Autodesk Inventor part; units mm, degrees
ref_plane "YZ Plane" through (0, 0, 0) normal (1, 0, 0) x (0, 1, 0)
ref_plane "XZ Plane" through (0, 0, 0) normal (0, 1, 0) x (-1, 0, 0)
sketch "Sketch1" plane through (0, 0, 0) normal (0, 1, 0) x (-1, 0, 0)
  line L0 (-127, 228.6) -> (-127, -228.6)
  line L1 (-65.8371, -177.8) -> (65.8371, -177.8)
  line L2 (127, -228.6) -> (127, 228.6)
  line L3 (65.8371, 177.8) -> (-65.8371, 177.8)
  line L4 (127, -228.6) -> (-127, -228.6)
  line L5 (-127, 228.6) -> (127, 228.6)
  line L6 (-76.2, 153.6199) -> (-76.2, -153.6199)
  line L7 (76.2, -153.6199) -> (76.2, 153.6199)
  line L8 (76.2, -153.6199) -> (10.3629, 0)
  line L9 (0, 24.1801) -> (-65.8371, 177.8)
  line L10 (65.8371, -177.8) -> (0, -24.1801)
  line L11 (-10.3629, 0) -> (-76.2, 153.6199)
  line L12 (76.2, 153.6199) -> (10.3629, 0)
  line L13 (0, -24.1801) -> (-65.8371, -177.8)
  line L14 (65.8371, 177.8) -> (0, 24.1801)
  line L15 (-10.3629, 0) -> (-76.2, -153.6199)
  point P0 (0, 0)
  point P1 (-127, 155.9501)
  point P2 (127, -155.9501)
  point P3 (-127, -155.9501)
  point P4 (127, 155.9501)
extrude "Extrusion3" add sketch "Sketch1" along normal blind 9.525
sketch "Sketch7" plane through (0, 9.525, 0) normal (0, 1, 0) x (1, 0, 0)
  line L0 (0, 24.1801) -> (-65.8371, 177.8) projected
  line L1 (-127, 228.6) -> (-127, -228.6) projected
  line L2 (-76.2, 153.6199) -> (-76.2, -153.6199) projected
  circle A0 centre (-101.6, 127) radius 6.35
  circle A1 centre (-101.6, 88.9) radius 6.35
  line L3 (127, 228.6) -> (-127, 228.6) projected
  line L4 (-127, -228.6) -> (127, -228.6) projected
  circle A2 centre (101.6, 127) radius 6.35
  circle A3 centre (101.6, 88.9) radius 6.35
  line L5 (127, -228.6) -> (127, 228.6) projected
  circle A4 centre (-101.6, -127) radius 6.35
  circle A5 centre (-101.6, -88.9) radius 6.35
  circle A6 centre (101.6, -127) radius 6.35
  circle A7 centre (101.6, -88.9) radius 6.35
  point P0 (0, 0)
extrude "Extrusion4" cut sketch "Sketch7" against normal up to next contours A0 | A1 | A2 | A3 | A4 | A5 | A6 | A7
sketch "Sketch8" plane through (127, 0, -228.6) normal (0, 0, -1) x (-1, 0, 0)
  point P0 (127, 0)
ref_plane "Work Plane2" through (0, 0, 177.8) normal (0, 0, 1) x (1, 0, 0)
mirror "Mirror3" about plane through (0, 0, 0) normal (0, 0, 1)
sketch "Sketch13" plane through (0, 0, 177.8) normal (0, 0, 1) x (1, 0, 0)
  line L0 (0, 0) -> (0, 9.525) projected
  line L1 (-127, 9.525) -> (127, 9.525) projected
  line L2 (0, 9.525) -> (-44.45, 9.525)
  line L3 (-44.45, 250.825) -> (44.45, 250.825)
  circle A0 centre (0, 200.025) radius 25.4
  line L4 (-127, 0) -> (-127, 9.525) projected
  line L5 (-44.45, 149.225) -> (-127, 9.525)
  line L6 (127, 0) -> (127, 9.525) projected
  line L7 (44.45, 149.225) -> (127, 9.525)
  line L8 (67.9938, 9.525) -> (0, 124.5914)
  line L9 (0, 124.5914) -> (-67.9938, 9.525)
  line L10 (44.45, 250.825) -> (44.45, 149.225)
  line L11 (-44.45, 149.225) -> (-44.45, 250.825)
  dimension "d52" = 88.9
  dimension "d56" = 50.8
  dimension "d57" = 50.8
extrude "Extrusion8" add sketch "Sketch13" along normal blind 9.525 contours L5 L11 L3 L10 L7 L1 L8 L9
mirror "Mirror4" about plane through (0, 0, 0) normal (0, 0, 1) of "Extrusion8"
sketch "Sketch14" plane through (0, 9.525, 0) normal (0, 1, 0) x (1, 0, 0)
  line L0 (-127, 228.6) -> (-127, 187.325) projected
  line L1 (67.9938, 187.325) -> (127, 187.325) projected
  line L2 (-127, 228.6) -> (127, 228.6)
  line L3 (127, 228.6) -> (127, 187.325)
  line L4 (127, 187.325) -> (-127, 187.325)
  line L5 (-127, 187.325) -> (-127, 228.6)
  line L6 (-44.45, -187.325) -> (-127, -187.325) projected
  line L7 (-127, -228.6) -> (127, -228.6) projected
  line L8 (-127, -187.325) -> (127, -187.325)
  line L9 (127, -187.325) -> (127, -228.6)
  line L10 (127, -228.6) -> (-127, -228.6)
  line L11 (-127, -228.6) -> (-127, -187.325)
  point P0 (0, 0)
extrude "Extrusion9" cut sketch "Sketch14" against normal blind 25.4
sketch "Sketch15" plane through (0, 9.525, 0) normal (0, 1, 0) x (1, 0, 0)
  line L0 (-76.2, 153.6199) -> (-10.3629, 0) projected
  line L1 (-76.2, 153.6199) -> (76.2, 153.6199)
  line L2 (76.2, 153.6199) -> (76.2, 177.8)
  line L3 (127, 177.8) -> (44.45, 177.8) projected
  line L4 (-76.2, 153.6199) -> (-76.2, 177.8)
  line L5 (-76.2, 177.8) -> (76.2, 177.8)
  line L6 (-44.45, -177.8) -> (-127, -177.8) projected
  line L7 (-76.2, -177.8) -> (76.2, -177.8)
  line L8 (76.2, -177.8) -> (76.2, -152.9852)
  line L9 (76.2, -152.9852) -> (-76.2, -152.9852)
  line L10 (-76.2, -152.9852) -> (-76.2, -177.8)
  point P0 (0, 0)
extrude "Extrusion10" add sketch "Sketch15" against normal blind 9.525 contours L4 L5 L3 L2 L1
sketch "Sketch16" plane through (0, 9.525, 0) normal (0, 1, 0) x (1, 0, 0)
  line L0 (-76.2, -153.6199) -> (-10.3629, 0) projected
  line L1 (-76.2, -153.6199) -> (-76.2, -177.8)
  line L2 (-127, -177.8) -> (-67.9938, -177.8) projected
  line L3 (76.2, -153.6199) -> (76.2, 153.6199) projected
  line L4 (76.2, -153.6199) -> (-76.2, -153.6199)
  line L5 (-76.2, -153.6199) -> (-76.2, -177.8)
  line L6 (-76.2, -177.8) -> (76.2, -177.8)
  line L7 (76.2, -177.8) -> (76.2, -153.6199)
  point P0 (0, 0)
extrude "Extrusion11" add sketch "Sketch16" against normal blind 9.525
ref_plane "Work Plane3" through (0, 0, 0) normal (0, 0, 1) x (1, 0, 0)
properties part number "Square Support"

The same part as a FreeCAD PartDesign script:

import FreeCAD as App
import Part
import Sketcher
Q = App.Units.Quantity

doc = App.newDocument("Part")
body = doc.addObject("PartDesign::Body", "Body")

sketch1 = body.newObject("Sketcher::SketchObject", "Sketch")
sketch1.AttachmentSupport = (doc.getObject("XZ_Plane"), [""])
sketch1.MapMode = "FlatFace"
sketch1.addGeometry(Part.LineSegment(App.Vector(-127, 229, 0), App.Vector(127, 229, 0)), False)
sketch1.addGeometry(Part.LineSegment(App.Vector(127, 229, 0), App.Vector(127, -229, 0)), False)
sketch1.addGeometry(Part.LineSegment(App.Vector(127, -229, 0), App.Vector(-127, -229, 0)), False)
sketch1.addGeometry(Part.LineSegment(App.Vector(-127, -229, 0), App.Vector(-127, 229, 0)), False)
sketch1.addGeometry(Part.LineSegment(App.Vector(-66, -178, 0), App.Vector(66, -178, 0)), False)
sketch1.addGeometry(Part.LineSegment(App.Vector(66, -178, 0), App.Vector(0, -24, 0)), False)
sketch1.addGeometry(Part.LineSegment(App.Vector(0, -24, 0), App.Vector(-66, -178, 0)), False)
sketch1.addGeometry(Part.LineSegment(App.Vector(76, -154, 0), App.Vector(76, 154, 0)), False)
sketch1.addGeometry(Part.LineSegment(App.Vector(76, 154, 0), App.Vector(10, 0, 0)), False)
sketch1.addGeometry(Part.LineSegment(App.Vector(10, 0, 0), App.Vector(76, -154, 0)), False)
sketch1.addGeometry(Part.LineSegment(App.Vector(-76, 154, 0), App.Vector(-76, -154, 0)), False)
sketch1.addGeometry(Part.LineSegment(App.Vector(-76, -154, 0), App.Vector(-10, 0, 0)), False)
sketch1.addGeometry(Part.LineSegment(App.Vector(-10, 0, 0), App.Vector(-76, 154, 0)), False)
sketch1.addGeometry(Part.LineSegment(App.Vector(66, 178, 0), App.Vector(-66, 178, 0)), False)
sketch1.addGeometry(Part.LineSegment(App.Vector(-66, 178, 0), App.Vector(0, 24, 0)), False)
sketch1.addGeometry(Part.LineSegment(App.Vector(0, 24, 0), App.Vector(66, 178, 0)), False)
sketch1.addConstraint(Sketcher.Constraint("Coincident", 0, 2, 1, 1))
sketch1.addConstraint(Sketcher.Constraint("Coincident", 1, 2, 2, 1))
sketch1.addConstraint(Sketcher.Constraint("Coincident", 2, 2, 3, 1))
sketch1.addConstraint(Sketcher.Constraint("Coincident", 3, 2, 0, 1))
sketch1.addConstraint(Sketcher.Constraint("Coincident", 4, 2, 5, 1))
sketch1.addConstraint(Sketcher.Constraint("Coincident", 5, 2, 6, 1))
sketch1.addConstraint(Sketcher.Constraint("Coincident", 6, 2, 4, 1))
sketch1.addConstraint(Sketcher.Constraint("Coincident", 7, 2, 8, 1))
sketch1.addConstraint(Sketcher.Constraint("Coincident", 8, 2, 9, 1))
sketch1.addConstraint(Sketcher.Constraint("Coincident", 9, 2, 7, 1))
sketch1.addConstraint(Sketcher.Constraint("Coincident", 10, 2, 11, 1))
sketch1.addConstraint(Sketcher.Constraint("Coincident", 11, 2, 12, 1))
sketch1.addConstraint(Sketcher.Constraint("Coincident", 12, 2, 10, 1))
sketch1.addConstraint(Sketcher.Constraint("Coincident", 13, 2, 14, 1))
sketch1.addConstraint(Sketcher.Constraint("Coincident", 14, 2, 15, 1))
sketch1.addConstraint(Sketcher.Constraint("Coincident", 15, 2, 13, 1))
sketch1.addConstraint(Sketcher.Constraint("Horizontal", 0))
sketch1.addConstraint(Sketcher.Constraint("Vertical", 1))
sketch1.addConstraint(Sketcher.Constraint("Horizontal", 2))
sketch1.addConstraint(Sketcher.Constraint("Vertical", 3))
sketch1.addConstraint(Sketcher.Constraint("Horizontal", 4))
sketch1.addConstraint(Sketcher.Constraint("Vertical", 7))
sketch1.addConstraint(Sketcher.Constraint("Vertical", 10))
sketch1.addConstraint(Sketcher.Constraint("Horizontal", 13))
sketch1.addConstraint(Sketcher.Constraint("Symmetric", 0, 2, 2, 2, -1, 1))
sketch1.addConstraint(Sketcher.Constraint("Symmetric", 7, 2, 10, 2, -1, 1))
sketch1.addConstraint(Sketcher.Constraint("Symmetric", 8, 2, 11, 2, -1, 1))
sketch1.addConstraint(Sketcher.Constraint("Symmetric", 4, 2, 13, 2, -1, 1))
sketch1.addConstraint(Sketcher.Constraint("Symmetric", 5, 2, 14, 2, -1, 1))
sketch1.addConstraint(Sketcher.Constraint("PointOnObject", 5, 2, -2))
sketch1.addConstraint(Sketcher.Constraint("PointOnObject", 8, 2, -1))
sketch1.addConstraint(Sketcher.Constraint("Parallel", 6, 8))
sketch1.addConstraint(Sketcher.Constraint("Parallel", 5, 9))
sketch1.addConstraint(Sketcher.Constraint("Parallel", 9, 12))
sketch1.addConstraint(Sketcher.Constraint("Parallel", 11, 15))
sketch1.addConstraint(Sketcher.Constraint("Horizontal", 9, 2, 10, 2))
sketch1.addConstraint(Sketcher.Constraint("Equal", 6, 8))
sketch1.addConstraint(Sketcher.Constraint("DistanceX", 0, 1, 0, 2, Q("10 in")))
sketch1.addConstraint(Sketcher.Constraint("DistanceY", 1, 2, 1, 1, Q("18 in")))
sketch1.addConstraint(Sketcher.Constraint("DistanceY", 4, 2, -1, 1, Q("7 in")))
sketch1.addConstraint(Sketcher.Constraint("DistanceX", -1, 1, 7, 2, Q("3 in")))
sketch1.addConstraint(Sketcher.Constraint("DistanceX", -1, 1, 4, 2, Q("2.592 in")))
sketch1.addConstraint(Sketcher.Constraint("DistanceY", 7, 1, 7, 2, Q("307.2398 mm")))
pad1 = body.newObject("PartDesign::Pad", "Pad")
pad1.Profile = sketch1
pad1.Length = Q("0.375 in")
pad1.Reversed = True

sketch2 = body.newObject("Sketcher::SketchObject", "Sketch001")
sketch2.AttachmentSupport = (doc.getObject("XZ_Plane"), [""])
sketch2.MapMode = "FlatFace"
sketch2.AttachmentOffset = App.Placement(App.Vector(0, 0, -0.375 * 25.4), App.Rotation())
sketch2.addGeometry(Part.Circle(App.Vector(-102, -127, 0), App.Vector(0, 0, 1), 6), False)
sketch2.addGeometry(Part.Circle(App.Vector(-102, -89, 0), App.Vector(0, 0, 1), 6), False)
sketch2.addGeometry(Part.Circle(App.Vector(102, -127, 0), App.Vector(0, 0, 1), 6), False)
sketch2.addGeometry(Part.Circle(App.Vector(102, -89, 0), App.Vector(0, 0, 1), 6), False)
sketch2.addGeometry(Part.Circle(App.Vector(-102, 127, 0), App.Vector(0, 0, 1), 6), False)
sketch2.addGeometry(Part.Circle(App.Vector(-102, 89, 0), App.Vector(0, 0, 1), 6), False)
sketch2.addGeometry(Part.Circle(App.Vector(102, 127, 0), App.Vector(0, 0, 1), 6), False)
sketch2.addGeometry(Part.Circle(App.Vector(102, 89, 0), App.Vector(0, 0, 1), 6), False)
sketch2.addConstraint(Sketcher.Constraint("Equal", 0, 1))
sketch2.addConstraint(Sketcher.Constraint("Equal", 1, 2))
sketch2.addConstraint(Sketcher.Constraint("Equal", 2, 3))
sketch2.addConstraint(Sketcher.Constraint("Equal", 3, 4))
sketch2.addConstraint(Sketcher.Constraint("Equal", 4, 5))
sketch2.addConstraint(Sketcher.Constraint("Equal", 5, 6))
sketch2.addConstraint(Sketcher.Constraint("Equal", 6, 7))
sketch2.addConstraint(Sketcher.Constraint("Symmetric", 2, 3, 4, 3, -1, 1))
sketch2.addConstraint(Sketcher.Constraint("Symmetric", 3, 3, 5, 3, -1, 1))
sketch2.addConstraint(Sketcher.Constraint("Symmetric", 0, 3, 6, 3, -1, 1))
sketch2.addConstraint(Sketcher.Constraint("Symmetric", 1, 3, 7, 3, -1, 1))
sketch2.addConstraint(Sketcher.Constraint("Symmetric", 0, 3, 2, 3, -2))
sketch2.addConstraint(Sketcher.Constraint("Symmetric", 1, 3, 3, 3, -2))
sketch2.addConstraint(Sketcher.Constraint("Vertical", 0, 3, 1, 3))
sketch2.addConstraint(Sketcher.Constraint("Diameter", 0, Q("0.5 in")))
sketch2.addConstraint(Sketcher.Constraint("DistanceX", 0, 3, -1, 1, Q("4 in")))
sketch2.addConstraint(Sketcher.Constraint("DistanceY", 0, 3, -1, 1, Q("5 in")))
sketch2.addConstraint(Sketcher.Constraint("DistanceY", 1, 3, 5, 3, Q("7 in")))
pocket1 = body.newObject("PartDesign::Pocket", "Pocket")
pocket1.Profile = sketch2
pocket1.Type = "UpToFirst"
pocket1.Reversed = True
doc.recompute()

mirrored = body.newObject("PartDesign::Mirrored", "Mirrored")
mirrored.TransformMode = "Transform body"
mirrored.MirrorPlane = (doc.getObject("XY_Plane"), [""])
body.Tip = mirrored

sketch3 = body.newObject("Sketcher::SketchObject", "Sketch002")
sketch3.AttachmentSupport = (doc.getObject("XY_Plane"), [""])
sketch3.MapMode = "FlatFace"
sketch3.AttachmentOffset = App.Placement(App.Vector(0, 0, 7 * 25.4), App.Rotation())
sketch3.addGeometry(Part.LineSegment(App.Vector(-44, 149, 0), App.Vector(-127, 10, 0)), False)
sketch3.addGeometry(Part.LineSegment(App.Vector(-127, 10, 0), App.Vector(-68, 10, 0)), False)
sketch3.addGeometry(Part.LineSegment(App.Vector(-68, 10, 0), App.Vector(0, 125, 0)), False)
sketch3.addGeometry(Part.LineSegment(App.Vector(0, 125, 0), App.Vector(68, 10, 0)), False)
sketch3.addGeometry(Part.LineSegment(App.Vector(68, 10, 0), App.Vector(127, 10, 0)), False)
sketch3.addGeometry(Part.LineSegment(App.Vector(127, 10, 0), App.Vector(44, 149, 0)), False)
sketch3.addGeometry(Part.LineSegment(App.Vector(44, 149, 0), App.Vector(44, 251, 0)), False)
sketch3.addGeometry(Part.LineSegment(App.Vector(44, 251, 0), App.Vector(-44, 251, 0)), False)
sketch3.addGeometry(Part.LineSegment(App.Vector(-44, 251, 0), App.Vector(-44, 149, 0)), False)
sketch3.addGeometry(Part.Circle(App.Vector(0, 200, 0), App.Vector(0, 0, 1), 25), False)
sketch3.addConstraint(Sketcher.Constraint("Coincident", 0, 2, 1, 1))
sketch3.addConstraint(Sketcher.Constraint("Coincident", 1, 2, 2, 1))
sketch3.addConstraint(Sketcher.Constraint("Coincident", 2, 2, 3, 1))
sketch3.addConstraint(Sketcher.Constraint("Coincident", 3, 2, 4, 1))
sketch3.addConstraint(Sketcher.Constraint("Coincident", 4, 2, 5, 1))
sketch3.addConstraint(Sketcher.Constraint("Coincident", 5, 2, 6, 1))
sketch3.addConstraint(Sketcher.Constraint("Coincident", 6, 2, 7, 1))
sketch3.addConstraint(Sketcher.Constraint("Coincident", 7, 2, 8, 1))
sketch3.addConstraint(Sketcher.Constraint("Coincident", 8, 2, 0, 1))
sketch3.addConstraint(Sketcher.Constraint("Horizontal", 1))
sketch3.addConstraint(Sketcher.Constraint("Horizontal", 4))
sketch3.addConstraint(Sketcher.Constraint("Vertical", 6))
sketch3.addConstraint(Sketcher.Constraint("Horizontal", 7))
sketch3.addConstraint(Sketcher.Constraint("Vertical", 8))
sketch3.addConstraint(Sketcher.Constraint("Symmetric", 1, 2, 3, 2, -2))
sketch3.addConstraint(Sketcher.Constraint("Symmetric", 5, 2, 8, 2, -2))
sketch3.addConstraint(Sketcher.Constraint("PointOnObject", 9, 3, -2))
sketch3.addConstraint(Sketcher.Constraint("PointOnObject", 2, 2, -2))
sketch3.addConstraint(Sketcher.Constraint("Parallel", 0, 2))
sketch3.addConstraint(Sketcher.Constraint("Parallel", 3, 5))
sketch3.addConstraint(Sketcher.Constraint("Diameter", 9, Q("2 in")))
sketch3.addConstraint(Sketcher.Constraint("DistanceX", 7, 2, 7, 1, Q("3.5 in")))
sketch3.addConstraint(Sketcher.Constraint("DistanceY", 5, 2, 9, 3, Q("2 in")))
sketch3.addConstraint(Sketcher.Constraint("DistanceY", 9, 3, 6, 2, Q("2 in")))
sketch3.addConstraint(Sketcher.Constraint("DistanceX", 0, 2, -1, 1, Q("5 in")))
sketch3.addConstraint(Sketcher.Constraint("DistanceY", 0, 2, 9, 3, Q("7.5 in")))
sketch3.addConstraint(Sketcher.Constraint("DistanceY", -1, 1, 9, 3, Q("7.875 in")))
sketch3.addConstraint(Sketcher.Constraint("DistanceX", 1, 1, 1, 2, Q("59.0062 mm")))
pad2 = body.newObject("PartDesign::Pad", "Pad001")
pad2.Profile = sketch3
pad2.Length = Q("0.375 in")
doc.recompute()

mirrored2 = body.newObject("PartDesign::Mirrored", "Mirrored001")
mirrored2.Originals = [pad2]
mirrored2.MirrorPlane = (doc.getObject("XY_Plane"), [""])
body.Tip = mirrored2

sketch4 = body.newObject("Sketcher::SketchObject", "Sketch003")
sketch4.AttachmentSupport = (doc.getObject("XZ_Plane"), [""])
sketch4.MapMode = "FlatFace"
sketch4.AttachmentOffset = App.Placement(App.Vector(0, 0, -0.375 * 25.4), App.Rotation())
sketch4.addGeometry(Part.LineSegment(App.Vector(127, -229, 0), App.Vector(-127, -229, 0)), False)
sketch4.addGeometry(Part.LineSegment(App.Vector(-127, -229, 0), App.Vector(-127, -187, 0)), False)
sketch4.addGeometry(Part.LineSegment(App.Vector(-127, -187, 0), App.Vector(127, -187, 0)), False)
sketch4.addGeometry(Part.LineSegment(App.Vector(127, -187, 0), App.Vector(127, -229, 0)), False)
sketch4.addGeometry(Part.LineSegment(App.Vector(127, 187, 0), App.Vector(-127, 187, 0)), False)
sketch4.addGeometry(Part.LineSegment(App.Vector(-127, 187, 0), App.Vector(-127, 229, 0)), False)
sketch4.addGeometry(Part.LineSegment(App.Vector(-127, 229, 0), App.Vector(127, 229, 0)), False)
sketch4.addGeometry(Part.LineSegment(App.Vector(127, 229, 0), App.Vector(127, 187, 0)), False)
sketch4.addConstraint(Sketcher.Constraint("Coincident", 0, 2, 1, 1))
sketch4.addConstraint(Sketcher.Constraint("Coincident", 1, 2, 2, 1))
sketch4.addConstraint(Sketcher.Constraint("Coincident", 2, 2, 3, 1))
sketch4.addConstraint(Sketcher.Constraint("Coincident", 3, 2, 0, 1))
sketch4.addConstraint(Sketcher.Constraint("Coincident", 4, 2, 5, 1))
sketch4.addConstraint(Sketcher.Constraint("Coincident", 5, 2, 6, 1))
sketch4.addConstraint(Sketcher.Constraint("Coincident", 6, 2, 7, 1))
sketch4.addConstraint(Sketcher.Constraint("Coincident", 7, 2, 4, 1))
sketch4.addConstraint(Sketcher.Constraint("Horizontal", 0))
sketch4.addConstraint(Sketcher.Constraint("Vertical", 1))
sketch4.addConstraint(Sketcher.Constraint("Horizontal", 2))
sketch4.addConstraint(Sketcher.Constraint("Vertical", 3))
sketch4.addConstraint(Sketcher.Constraint("Horizontal", 4))
sketch4.addConstraint(Sketcher.Constraint("Vertical", 5))
sketch4.addConstraint(Sketcher.Constraint("Horizontal", 6))
sketch4.addConstraint(Sketcher.Constraint("Vertical", 7))
sketch4.addConstraint(Sketcher.Constraint("Symmetric", 2, 2, 4, 2, -1, 1))
sketch4.addConstraint(Sketcher.Constraint("Symmetric", 0, 2, 6, 2, -1, 1))
sketch4.addConstraint(Sketcher.Constraint("Vertical", 1, 2, 4, 2))
sketch4.addConstraint(Sketcher.Constraint("DistanceX", 0, 2, 0, 1, Q("10 in")))
sketch4.addConstraint(Sketcher.Constraint("DistanceY", 0, 2, -1, 1, Q("9 in")))
sketch4.addConstraint(Sketcher.Constraint("DistanceY", 1, 1, 1, 2, Q("1.625 in")))
pocket2 = body.newObject("PartDesign::Pocket", "Pocket001")
pocket2.Profile = sketch4
pocket2.Length = Q("1 in")
pocket2.Reversed = True

sketch5 = body.newObject("Sketcher::SketchObject", "Sketch004")
sketch5.AttachmentSupport = (doc.getObject("XZ_Plane"), [""])
sketch5.MapMode = "FlatFace"
sketch5.AttachmentOffset = App.Placement(App.Vector(0, 0, -0.375 * 25.4), App.Rotation())
sketch5.addGeometry(Part.LineSegment(App.Vector(-76, -178, 0), App.Vector(-76, -154, 0)), False)
sketch5.addGeometry(Part.LineSegment(App.Vector(-76, -154, 0), App.Vector(76, -154, 0)), False)
sketch5.addGeometry(Part.LineSegment(App.Vector(76, -154, 0), App.Vector(76, -178, 0)), False)
sketch5.addGeometry(Part.LineSegment(App.Vector(76, -178, 0), App.Vector(-76, -178, 0)), False)
sketch5.addConstraint(Sketcher.Constraint("Coincident", 0, 2, 1, 1))
sketch5.addConstraint(Sketcher.Constraint("Coincident", 1, 2, 2, 1))
sketch5.addConstraint(Sketcher.Constraint("Coincident", 2, 2, 3, 1))
sketch5.addConstraint(Sketcher.Constraint("Coincident", 3, 2, 0, 1))
sketch5.addConstraint(Sketcher.Constraint("Vertical", 0))
sketch5.addConstraint(Sketcher.Constraint("Horizontal", 1))
sketch5.addConstraint(Sketcher.Constraint("Vertical", 2))
sketch5.addConstraint(Sketcher.Constraint("Horizontal", 3))
sketch5.addConstraint(Sketcher.Constraint("DistanceX", 1, 1, 1, 2, Q("6 in")))
sketch5.addConstraint(Sketcher.Constraint("DistanceX", 0, 2, -1, 1, Q("3 in")))
sketch5.addConstraint(Sketcher.Constraint("DistanceY", 2, 2, -1, 1, Q("7 in")))
sketch5.addConstraint(Sketcher.Constraint("DistanceY", 0, 1, 0, 2, Q("24.18 mm")))
pad3 = body.newObject("PartDesign::Pad", "Pad002")
pad3.Profile = sketch5
pad3.Length = Q("0.375 in")

sketch6 = body.newObject("Sketcher::SketchObject", "Sketch005")
sketch6.AttachmentSupport = (doc.getObject("XZ_Plane"), [""])
sketch6.MapMode = "FlatFace"
sketch6.AttachmentOffset = App.Placement(App.Vector(0, 0, -0.375 * 25.4), App.Rotation())
sketch6.addGeometry(Part.LineSegment(App.Vector(76, 154, 0), App.Vector(-76, 154, 0)), False)
sketch6.addGeometry(Part.LineSegment(App.Vector(-76, 154, 0), App.Vector(-76, 178, 0)), False)
sketch6.addGeometry(Part.LineSegment(App.Vector(-76, 178, 0), App.Vector(76, 178, 0)), False)
sketch6.addGeometry(Part.LineSegment(App.Vector(76, 178, 0), App.Vector(76, 154, 0)), False)
sketch6.addConstraint(Sketcher.Constraint("Coincident", 0, 2, 1, 1))
sketch6.addConstraint(Sketcher.Constraint("Coincident", 1, 2, 2, 1))
sketch6.addConstraint(Sketcher.Constraint("Coincident", 2, 2, 3, 1))
sketch6.addConstraint(Sketcher.Constraint("Coincident", 3, 2, 0, 1))
sketch6.addConstraint(Sketcher.Constraint("Horizontal", 0))
sketch6.addConstraint(Sketcher.Constraint("Vertical", 1))
sketch6.addConstraint(Sketcher.Constraint("Horizontal", 2))
sketch6.addConstraint(Sketcher.Constraint("Vertical", 3))
sketch6.addConstraint(Sketcher.Constraint("DistanceX", 0, 2, 0, 1, Q("6 in")))
sketch6.addConstraint(Sketcher.Constraint("DistanceX", 0, 2, -1, 1, Q("3 in")))
sketch6.addConstraint(Sketcher.Constraint("DistanceY", -1, 1, 1, 2, Q("7 in")))
sketch6.addConstraint(Sketcher.Constraint("DistanceY", 1, 1, 1, 2, Q("24.18 mm")))
pad4 = body.newObject("PartDesign::Pad", "Pad003")
pad4.Profile = sketch6
pad4.Length = Q("0.375 in")

doc.recompute()
